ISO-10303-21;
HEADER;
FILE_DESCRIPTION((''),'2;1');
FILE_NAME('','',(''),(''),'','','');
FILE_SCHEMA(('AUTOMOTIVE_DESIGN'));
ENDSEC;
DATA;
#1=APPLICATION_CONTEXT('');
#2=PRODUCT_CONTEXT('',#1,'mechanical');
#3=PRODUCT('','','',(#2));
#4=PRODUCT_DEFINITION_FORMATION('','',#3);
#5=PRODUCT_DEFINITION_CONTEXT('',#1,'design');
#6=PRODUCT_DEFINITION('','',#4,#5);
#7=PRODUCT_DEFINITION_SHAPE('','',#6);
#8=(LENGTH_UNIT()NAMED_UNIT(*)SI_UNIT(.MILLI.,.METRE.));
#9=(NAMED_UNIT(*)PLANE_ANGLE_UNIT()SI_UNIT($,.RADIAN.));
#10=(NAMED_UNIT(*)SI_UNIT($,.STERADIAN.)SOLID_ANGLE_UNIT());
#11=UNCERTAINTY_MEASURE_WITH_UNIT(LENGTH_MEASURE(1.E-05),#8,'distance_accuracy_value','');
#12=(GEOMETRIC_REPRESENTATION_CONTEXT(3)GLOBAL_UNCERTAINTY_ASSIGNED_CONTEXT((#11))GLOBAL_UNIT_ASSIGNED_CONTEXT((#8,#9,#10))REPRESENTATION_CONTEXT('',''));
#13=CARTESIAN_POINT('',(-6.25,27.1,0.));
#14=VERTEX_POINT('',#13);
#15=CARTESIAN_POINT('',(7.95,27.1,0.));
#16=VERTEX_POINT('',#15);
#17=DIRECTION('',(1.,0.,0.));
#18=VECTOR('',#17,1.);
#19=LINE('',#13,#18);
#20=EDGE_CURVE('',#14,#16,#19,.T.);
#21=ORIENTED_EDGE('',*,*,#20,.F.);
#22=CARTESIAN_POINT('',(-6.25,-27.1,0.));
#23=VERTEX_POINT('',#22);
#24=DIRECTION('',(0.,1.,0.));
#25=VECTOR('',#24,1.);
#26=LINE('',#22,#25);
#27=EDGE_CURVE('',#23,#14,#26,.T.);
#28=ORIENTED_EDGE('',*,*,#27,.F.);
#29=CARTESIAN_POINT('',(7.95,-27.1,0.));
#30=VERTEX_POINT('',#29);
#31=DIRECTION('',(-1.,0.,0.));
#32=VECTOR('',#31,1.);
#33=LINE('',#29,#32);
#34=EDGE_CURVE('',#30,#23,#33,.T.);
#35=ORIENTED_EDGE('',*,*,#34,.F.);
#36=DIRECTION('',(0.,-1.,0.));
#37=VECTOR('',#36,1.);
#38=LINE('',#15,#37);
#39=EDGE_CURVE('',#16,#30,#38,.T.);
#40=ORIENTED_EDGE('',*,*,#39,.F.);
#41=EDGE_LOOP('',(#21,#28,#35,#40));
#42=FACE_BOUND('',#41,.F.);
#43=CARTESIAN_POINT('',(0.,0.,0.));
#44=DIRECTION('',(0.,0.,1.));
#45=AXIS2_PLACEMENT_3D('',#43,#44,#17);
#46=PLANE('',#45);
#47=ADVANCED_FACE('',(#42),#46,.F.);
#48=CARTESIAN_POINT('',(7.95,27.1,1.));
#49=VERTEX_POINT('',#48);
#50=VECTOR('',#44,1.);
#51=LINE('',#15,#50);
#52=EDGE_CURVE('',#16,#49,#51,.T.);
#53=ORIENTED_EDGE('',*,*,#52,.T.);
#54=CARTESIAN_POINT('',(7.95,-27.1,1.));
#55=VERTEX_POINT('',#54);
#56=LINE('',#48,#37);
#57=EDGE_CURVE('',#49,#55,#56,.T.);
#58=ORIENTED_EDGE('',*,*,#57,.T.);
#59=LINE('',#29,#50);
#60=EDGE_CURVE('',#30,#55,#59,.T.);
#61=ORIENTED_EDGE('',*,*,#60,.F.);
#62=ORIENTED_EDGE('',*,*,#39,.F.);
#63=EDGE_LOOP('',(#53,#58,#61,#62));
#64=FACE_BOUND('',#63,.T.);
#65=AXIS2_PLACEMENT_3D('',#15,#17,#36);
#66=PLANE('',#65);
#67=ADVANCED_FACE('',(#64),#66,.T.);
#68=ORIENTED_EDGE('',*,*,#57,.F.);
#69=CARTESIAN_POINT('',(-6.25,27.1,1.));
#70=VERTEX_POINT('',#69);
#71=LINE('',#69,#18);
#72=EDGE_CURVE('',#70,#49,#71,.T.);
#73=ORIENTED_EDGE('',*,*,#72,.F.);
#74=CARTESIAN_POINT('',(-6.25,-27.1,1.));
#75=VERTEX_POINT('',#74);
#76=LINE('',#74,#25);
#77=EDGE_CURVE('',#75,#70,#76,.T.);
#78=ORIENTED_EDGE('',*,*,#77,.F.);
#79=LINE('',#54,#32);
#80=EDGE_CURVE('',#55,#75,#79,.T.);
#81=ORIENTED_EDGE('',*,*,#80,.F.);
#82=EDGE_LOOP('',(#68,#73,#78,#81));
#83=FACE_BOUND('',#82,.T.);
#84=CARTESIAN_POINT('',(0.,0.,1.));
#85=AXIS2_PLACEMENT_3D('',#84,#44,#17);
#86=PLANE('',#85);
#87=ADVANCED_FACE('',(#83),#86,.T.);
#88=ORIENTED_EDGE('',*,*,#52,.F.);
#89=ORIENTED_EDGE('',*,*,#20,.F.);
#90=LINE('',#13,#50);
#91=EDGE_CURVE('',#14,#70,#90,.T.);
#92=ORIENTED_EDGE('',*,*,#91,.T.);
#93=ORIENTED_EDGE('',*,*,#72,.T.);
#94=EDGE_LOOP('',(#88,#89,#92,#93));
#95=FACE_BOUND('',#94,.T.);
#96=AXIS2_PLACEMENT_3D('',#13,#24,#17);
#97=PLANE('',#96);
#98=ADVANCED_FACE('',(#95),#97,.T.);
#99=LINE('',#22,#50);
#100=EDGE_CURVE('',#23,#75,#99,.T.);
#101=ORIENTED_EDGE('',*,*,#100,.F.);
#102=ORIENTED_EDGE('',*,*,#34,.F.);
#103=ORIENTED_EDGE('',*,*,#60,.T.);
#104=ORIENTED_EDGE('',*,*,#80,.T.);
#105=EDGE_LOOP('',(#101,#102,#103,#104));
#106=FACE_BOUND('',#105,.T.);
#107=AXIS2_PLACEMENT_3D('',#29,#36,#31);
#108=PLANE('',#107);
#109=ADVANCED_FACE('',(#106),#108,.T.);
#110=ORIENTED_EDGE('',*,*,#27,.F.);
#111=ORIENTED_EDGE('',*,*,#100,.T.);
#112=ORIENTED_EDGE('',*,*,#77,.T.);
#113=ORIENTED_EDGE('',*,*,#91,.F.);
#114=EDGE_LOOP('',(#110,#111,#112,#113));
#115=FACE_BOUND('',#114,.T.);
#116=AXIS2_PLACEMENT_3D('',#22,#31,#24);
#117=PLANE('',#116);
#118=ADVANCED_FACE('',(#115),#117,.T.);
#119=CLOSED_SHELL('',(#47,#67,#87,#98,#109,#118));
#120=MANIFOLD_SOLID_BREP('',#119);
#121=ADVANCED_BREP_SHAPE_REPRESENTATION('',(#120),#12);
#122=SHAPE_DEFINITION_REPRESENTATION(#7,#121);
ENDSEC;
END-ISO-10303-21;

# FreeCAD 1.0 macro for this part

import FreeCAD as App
import Part
import Sketcher

V = App.Vector
Q = App.Units.Quantity


def add_polygon(sketch, points):
    """Adds a closed chain of lines whose ends are joined by coincident constraints."""
    first, n = sketch.GeometryCount, len(points)
    for a, b in zip(points, points[1:] + points[:1]):
        sketch.addGeometry(Part.LineSegment(App.Vector(*a, 0), App.Vector(*b, 0)), False)
    for i in range(n):
        sketch.addConstraint(Sketcher.Constraint("Coincident", first + i, 2, first + (i + 1) % n, 1))

doc = App.newDocument("Part")
body = doc.addObject("PartDesign::Body", "Body")

sketch1 = body.newObject("Sketcher::SketchObject", "Sketch")
sketch1.AttachmentSupport = (doc.getObject("XY_Plane"), [""])
sketch1.MapMode = "FlatFace"
add_polygon(sketch1, [(-6, 27), (-6, -27), (8, -27), (8, 27)])
sketch1.addConstraint([
    Sketcher.Constraint("Vertical", 0),
    Sketcher.Constraint("Horizontal", 1),
    Sketcher.Constraint("Vertical", 2),
    Sketcher.Constraint("Horizontal", 3),
    Sketcher.Constraint("DistanceX", 1, 1, 1, 2, Q("14.2 mm")),
    Sketcher.Constraint("DistanceY", 0, 2, 0, 1, Q("54.2 mm")),
    Sketcher.Constraint("DistanceY", 0, 2, -1, 1, Q("27.1 mm")),
    Sketcher.Constraint("DistanceX", 0, 2, -1, 1, Q("6.25 mm")),
])
pad1 = body.newObject("PartDesign::Pad", "Pad")
pad1.Profile = sketch1
pad1.Length = 1

doc.recompute()
